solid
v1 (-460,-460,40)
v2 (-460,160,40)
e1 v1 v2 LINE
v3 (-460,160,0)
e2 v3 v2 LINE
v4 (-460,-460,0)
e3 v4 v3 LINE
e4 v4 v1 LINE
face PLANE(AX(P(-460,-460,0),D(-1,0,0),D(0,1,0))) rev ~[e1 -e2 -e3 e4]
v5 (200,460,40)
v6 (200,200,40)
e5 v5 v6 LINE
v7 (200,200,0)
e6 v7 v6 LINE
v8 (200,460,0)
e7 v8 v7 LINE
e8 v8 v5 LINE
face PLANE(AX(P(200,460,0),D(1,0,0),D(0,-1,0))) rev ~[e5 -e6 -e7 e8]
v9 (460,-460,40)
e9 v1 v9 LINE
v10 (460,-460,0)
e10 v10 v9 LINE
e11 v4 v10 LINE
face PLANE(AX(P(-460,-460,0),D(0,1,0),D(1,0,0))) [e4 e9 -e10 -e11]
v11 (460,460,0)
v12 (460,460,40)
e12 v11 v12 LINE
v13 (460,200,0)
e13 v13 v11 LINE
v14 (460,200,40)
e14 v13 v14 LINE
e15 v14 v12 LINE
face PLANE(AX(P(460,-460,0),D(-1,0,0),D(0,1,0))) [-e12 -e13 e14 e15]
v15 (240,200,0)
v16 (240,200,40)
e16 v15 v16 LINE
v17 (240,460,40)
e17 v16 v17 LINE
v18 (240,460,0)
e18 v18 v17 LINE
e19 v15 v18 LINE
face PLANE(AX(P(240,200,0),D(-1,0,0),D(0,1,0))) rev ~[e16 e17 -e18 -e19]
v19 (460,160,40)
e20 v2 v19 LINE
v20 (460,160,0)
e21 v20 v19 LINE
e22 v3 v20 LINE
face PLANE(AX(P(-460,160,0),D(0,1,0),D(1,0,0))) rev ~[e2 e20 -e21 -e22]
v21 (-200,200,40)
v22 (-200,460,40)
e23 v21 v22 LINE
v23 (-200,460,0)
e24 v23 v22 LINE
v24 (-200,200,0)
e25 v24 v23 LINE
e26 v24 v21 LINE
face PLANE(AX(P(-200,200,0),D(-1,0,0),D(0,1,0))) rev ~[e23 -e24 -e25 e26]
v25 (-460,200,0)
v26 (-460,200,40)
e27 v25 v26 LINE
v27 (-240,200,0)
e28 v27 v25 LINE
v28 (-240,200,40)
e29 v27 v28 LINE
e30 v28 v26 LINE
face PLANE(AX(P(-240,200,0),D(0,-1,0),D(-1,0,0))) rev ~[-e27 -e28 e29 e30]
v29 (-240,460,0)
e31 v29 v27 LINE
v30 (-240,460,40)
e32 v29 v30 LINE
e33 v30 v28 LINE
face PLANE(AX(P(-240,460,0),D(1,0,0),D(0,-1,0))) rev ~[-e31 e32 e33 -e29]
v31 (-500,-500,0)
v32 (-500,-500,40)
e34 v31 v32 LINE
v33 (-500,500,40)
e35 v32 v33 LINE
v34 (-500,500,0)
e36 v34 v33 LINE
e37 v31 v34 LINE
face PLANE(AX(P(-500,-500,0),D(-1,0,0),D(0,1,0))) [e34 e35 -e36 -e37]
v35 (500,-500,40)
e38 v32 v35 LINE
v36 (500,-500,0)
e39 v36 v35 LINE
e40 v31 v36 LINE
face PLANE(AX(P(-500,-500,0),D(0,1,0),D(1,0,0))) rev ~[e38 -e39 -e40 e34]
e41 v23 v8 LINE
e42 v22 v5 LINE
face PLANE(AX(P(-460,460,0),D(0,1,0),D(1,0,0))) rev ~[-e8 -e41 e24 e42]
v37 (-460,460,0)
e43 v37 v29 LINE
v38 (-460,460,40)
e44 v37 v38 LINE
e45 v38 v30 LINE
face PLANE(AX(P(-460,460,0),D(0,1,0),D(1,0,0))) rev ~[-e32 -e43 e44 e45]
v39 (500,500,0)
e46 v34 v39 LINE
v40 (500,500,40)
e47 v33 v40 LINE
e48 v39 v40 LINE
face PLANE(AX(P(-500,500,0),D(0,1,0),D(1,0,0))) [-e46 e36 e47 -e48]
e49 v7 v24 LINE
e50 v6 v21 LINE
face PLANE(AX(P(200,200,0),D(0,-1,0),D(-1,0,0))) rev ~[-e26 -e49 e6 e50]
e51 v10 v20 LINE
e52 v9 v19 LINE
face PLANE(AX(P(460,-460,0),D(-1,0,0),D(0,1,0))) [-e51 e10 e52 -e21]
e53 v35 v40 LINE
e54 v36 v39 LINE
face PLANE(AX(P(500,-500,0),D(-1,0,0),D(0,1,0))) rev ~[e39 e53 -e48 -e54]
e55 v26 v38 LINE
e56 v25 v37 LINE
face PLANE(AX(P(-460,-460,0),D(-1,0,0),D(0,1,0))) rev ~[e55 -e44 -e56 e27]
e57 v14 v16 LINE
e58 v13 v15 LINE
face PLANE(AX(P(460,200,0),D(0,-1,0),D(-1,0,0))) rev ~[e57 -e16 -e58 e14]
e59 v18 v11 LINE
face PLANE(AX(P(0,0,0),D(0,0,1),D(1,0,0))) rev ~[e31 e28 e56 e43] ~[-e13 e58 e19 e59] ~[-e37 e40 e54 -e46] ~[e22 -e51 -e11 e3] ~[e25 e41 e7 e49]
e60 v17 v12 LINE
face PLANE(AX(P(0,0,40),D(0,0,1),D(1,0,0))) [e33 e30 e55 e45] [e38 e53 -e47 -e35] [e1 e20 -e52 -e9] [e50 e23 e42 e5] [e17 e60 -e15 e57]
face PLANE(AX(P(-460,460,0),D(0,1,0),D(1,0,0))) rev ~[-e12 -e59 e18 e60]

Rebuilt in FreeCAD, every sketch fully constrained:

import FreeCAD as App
import Part
import Sketcher

doc = App.newDocument("Part")
body = doc.addObject("PartDesign::Body", "Body")

sketch1 = doc.addObject("Sketcher::SketchObject", "Sketch")
body.addObject(sketch1)
sketch1.AttachmentSupport = (doc.XY_Plane, [""])
sketch1.MapMode = "FlatFace"
sketch1.addGeometry(Part.LineSegment(App.Vector(-500, 500, 0), App.Vector(-500, -500, 0)), False)
sketch1.addGeometry(Part.LineSegment(App.Vector(-500, -500, 0), App.Vector(500, -500, 0)), False)
sketch1.addGeometry(Part.LineSegment(App.Vector(500, -500, 0), App.Vector(500, 500, 0)), False)
sketch1.addGeometry(Part.LineSegment(App.Vector(500, 500, 0), App.Vector(-500, 500, 0)), False)
sketch1.addGeometry(Part.LineSegment(App.Vector(460, -460, 0), App.Vector(-460, -460, 0)), False)
sketch1.addGeometry(Part.LineSegment(App.Vector(-460, -460, 0), App.Vector(-460, 460, 0)), False)
sketch1.addGeometry(Part.LineSegment(App.Vector(-460, 460, 0), App.Vector(460, 460, 0)), False)
sketch1.addGeometry(Part.LineSegment(App.Vector(460, 460, 0), App.Vector(460, -460, 0)), False)
sketch1.addConstraint(Sketcher.Constraint("Coincident", 0, 2, 1, 1))
sketch1.addConstraint(Sketcher.Constraint("Coincident", 1, 2, 2, 1))
sketch1.addConstraint(Sketcher.Constraint("Coincident", 2, 2, 3, 1))
sketch1.addConstraint(Sketcher.Constraint("Coincident", 3, 2, 0, 1))
sketch1.addConstraint(Sketcher.Constraint("Coincident", 4, 2, 5, 1))
sketch1.addConstraint(Sketcher.Constraint("Coincident", 5, 2, 6, 1))
sketch1.addConstraint(Sketcher.Constraint("Coincident", 6, 2, 7, 1))
sketch1.addConstraint(Sketcher.Constraint("Coincident", 7, 2, 4, 1))
sketch1.addConstraint(Sketcher.Constraint("Vertical", 0))
sketch1.addConstraint(Sketcher.Constraint("Horizontal", 1))
sketch1.addConstraint(Sketcher.Constraint("Vertical", 2))
sketch1.addConstraint(Sketcher.Constraint("Horizontal", 3))
sketch1.addConstraint(Sketcher.Constraint("Horizontal", 4))
sketch1.addConstraint(Sketcher.Constraint("Vertical", 5))
sketch1.addConstraint(Sketcher.Constraint("Horizontal", 6))
sketch1.addConstraint(Sketcher.Constraint("Vertical", 7))
sketch1.addConstraint(Sketcher.Constraint("Symmetric", 0, 2, 2, 2, -1, 1))
sketch1.addConstraint(Sketcher.Constraint("Symmetric", 4, 2, 6, 2, -1, 1))
sketch1.addConstraint(Sketcher.Constraint("Equal", 3, 0))
sketch1.addConstraint(Sketcher.Constraint("Equal", 6, 5))
sketch1.addConstraint(Sketcher.Constraint("DistanceX", 1, 1, 1, 2, 1000.0))
sketch1.addConstraint(Sketcher.Constraint("DistanceX", 4, 2, 4, 1, 920.0))
pad1 = doc.addObject("PartDesign::Pad", "Pad")
body.addObject(pad1)
pad1.Profile = sketch1
pad1.Length = 40

sketch2 = doc.addObject("Sketcher::SketchObject", "Sketch001")
body.addObject(sketch2)
sketch2.AttachmentSupport = (doc.XY_Plane, [""])
sketch2.MapMode = "FlatFace"
sketch2.addGeometry(Part.LineSegment(App.Vector(-460, 200, 0), App.Vector(-460, 160, 0)), False)
sketch2.addGeometry(Part.LineSegment(App.Vector(-460, 160, 0), App.Vector(460, 160, 0)), False)
sketch2.addGeometry(Part.LineSegment(App.Vector(460, 160, 0), App.Vector(460, 200, 0)), False)
sketch2.addGeometry(Part.LineSegment(App.Vector(460, 200, 0), App.Vector(240, 200, 0)), False)
sketch2.addGeometry(Part.LineSegment(App.Vector(240, 200, 0), App.Vector(240, 460, 0)), False)
sketch2.addGeometry(Part.LineSegment(App.Vector(240, 460, 0), App.Vector(200, 460, 0)), False)
sketch2.addGeometry(Part.LineSegment(App.Vector(200, 460, 0), App.Vector(200, 200, 0)), False)
sketch2.addGeometry(Part.LineSegment(App.Vector(200, 200, 0), App.Vector(-200, 200, 0)), False)
sketch2.addGeometry(Part.LineSegment(App.Vector(-200, 200, 0), App.Vector(-200, 460, 0)), False)
sketch2.addGeometry(Part.LineSegment(App.Vector(-200, 460, 0), App.Vector(-240, 460, 0)), False)
sketch2.addGeometry(Part.LineSegment(App.Vector(-240, 460, 0), App.Vector(-240, 200, 0)), False)
sketch2.addGeometry(Part.LineSegment(App.Vector(-240, 200, 0), App.Vector(-460, 200, 0)), False)
sketch2.addConstraint(Sketcher.Constraint("Coincident", 0, 2, 1, 1))
sketch2.addConstraint(Sketcher.Constraint("Coincident", 1, 2, 2, 1))
sketch2.addConstraint(Sketcher.Constraint("Coincident", 2, 2, 3, 1))
sketch2.addConstraint(Sketcher.Constraint("Coincident", 3, 2, 4, 1))
sketch2.addConstraint(Sketcher.Constraint("Coincident", 4, 2, 5, 1))
sketch2.addConstraint(Sketcher.Constraint("Coincident", 5, 2, 6, 1))
sketch2.addConstraint(Sketcher.Constraint("Coincident", 6, 2, 7, 1))
sketch2.addConstraint(Sketcher.Constraint("Coincident", 7, 2, 8, 1))
sketch2.addConstraint(Sketcher.Constraint("Coincident", 8, 2, 9, 1))
sketch2.addConstraint(Sketcher.Constraint("Coincident", 9, 2, 10, 1))
sketch2.addConstraint(Sketcher.Constraint("Coincident", 10, 2, 11, 1))
sketch2.addConstraint(Sketcher.Constraint("Coincident", 11, 2, 0, 1))
sketch2.addConstraint(Sketcher.Constraint("Vertical", 0))
sketch2.addConstraint(Sketcher.Constraint("Horizontal", 1))
sketch2.addConstraint(Sketcher.Constraint("Vertical", 2))
sketch2.addConstraint(Sketcher.Constraint("Horizontal", 3))
sketch2.addConstraint(Sketcher.Constraint("Vertical", 4))
sketch2.addConstraint(Sketcher.Constraint("Horizontal", 5))
sketch2.addConstraint(Sketcher.Constraint("Vertical", 6))
sketch2.addConstraint(Sketcher.Constraint("Horizontal", 7))
sketch2.addConstraint(Sketcher.Constraint("Vertical", 8))
sketch2.addConstraint(Sketcher.Constraint("Horizontal", 9))
sketch2.addConstraint(Sketcher.Constraint("Vertical", 10))
sketch2.addConstraint(Sketcher.Constraint("Horizontal", 11))
sketch2.addConstraint(Sketcher.Constraint("Symmetric", 5, 2, 8, 2, -2))
sketch2.addConstraint(Sketcher.Constraint("Symmetric", 3, 2, 10, 2, -2))
sketch2.addConstraint(Sketcher.Constraint("Horizontal", 3, 2, 6, 2))
sketch2.addConstraint(Sketcher.Constraint("Equal", 3, 11))
sketch2.addConstraint(Sketcher.Constraint("Equal", 9, 0))
sketch2.addConstraint(Sketcher.Constraint("DistanceX", 1, 1, 1, 2, 920.0))
sketch2.addConstraint(Sketcher.Constraint("DistanceX", 3, 2, 3, 1, 220.0))
sketch2.addConstraint(Sketcher.Constraint("DistanceX", 5, 2, 5, 1, 40.0))
sketch2.addConstraint(Sketcher.Constraint("DistanceY", 4, 1, 4, 2, 260.0))
sketch2.addConstraint(Sketcher.Constraint("DistanceY", -1, 1, 0, 2, 160.0))
pad2 = doc.addObject("PartDesign::Pad", "Pad001")
body.addObject(pad2)
pad2.Profile = sketch2
pad2.Length = 40

doc.recompute()
